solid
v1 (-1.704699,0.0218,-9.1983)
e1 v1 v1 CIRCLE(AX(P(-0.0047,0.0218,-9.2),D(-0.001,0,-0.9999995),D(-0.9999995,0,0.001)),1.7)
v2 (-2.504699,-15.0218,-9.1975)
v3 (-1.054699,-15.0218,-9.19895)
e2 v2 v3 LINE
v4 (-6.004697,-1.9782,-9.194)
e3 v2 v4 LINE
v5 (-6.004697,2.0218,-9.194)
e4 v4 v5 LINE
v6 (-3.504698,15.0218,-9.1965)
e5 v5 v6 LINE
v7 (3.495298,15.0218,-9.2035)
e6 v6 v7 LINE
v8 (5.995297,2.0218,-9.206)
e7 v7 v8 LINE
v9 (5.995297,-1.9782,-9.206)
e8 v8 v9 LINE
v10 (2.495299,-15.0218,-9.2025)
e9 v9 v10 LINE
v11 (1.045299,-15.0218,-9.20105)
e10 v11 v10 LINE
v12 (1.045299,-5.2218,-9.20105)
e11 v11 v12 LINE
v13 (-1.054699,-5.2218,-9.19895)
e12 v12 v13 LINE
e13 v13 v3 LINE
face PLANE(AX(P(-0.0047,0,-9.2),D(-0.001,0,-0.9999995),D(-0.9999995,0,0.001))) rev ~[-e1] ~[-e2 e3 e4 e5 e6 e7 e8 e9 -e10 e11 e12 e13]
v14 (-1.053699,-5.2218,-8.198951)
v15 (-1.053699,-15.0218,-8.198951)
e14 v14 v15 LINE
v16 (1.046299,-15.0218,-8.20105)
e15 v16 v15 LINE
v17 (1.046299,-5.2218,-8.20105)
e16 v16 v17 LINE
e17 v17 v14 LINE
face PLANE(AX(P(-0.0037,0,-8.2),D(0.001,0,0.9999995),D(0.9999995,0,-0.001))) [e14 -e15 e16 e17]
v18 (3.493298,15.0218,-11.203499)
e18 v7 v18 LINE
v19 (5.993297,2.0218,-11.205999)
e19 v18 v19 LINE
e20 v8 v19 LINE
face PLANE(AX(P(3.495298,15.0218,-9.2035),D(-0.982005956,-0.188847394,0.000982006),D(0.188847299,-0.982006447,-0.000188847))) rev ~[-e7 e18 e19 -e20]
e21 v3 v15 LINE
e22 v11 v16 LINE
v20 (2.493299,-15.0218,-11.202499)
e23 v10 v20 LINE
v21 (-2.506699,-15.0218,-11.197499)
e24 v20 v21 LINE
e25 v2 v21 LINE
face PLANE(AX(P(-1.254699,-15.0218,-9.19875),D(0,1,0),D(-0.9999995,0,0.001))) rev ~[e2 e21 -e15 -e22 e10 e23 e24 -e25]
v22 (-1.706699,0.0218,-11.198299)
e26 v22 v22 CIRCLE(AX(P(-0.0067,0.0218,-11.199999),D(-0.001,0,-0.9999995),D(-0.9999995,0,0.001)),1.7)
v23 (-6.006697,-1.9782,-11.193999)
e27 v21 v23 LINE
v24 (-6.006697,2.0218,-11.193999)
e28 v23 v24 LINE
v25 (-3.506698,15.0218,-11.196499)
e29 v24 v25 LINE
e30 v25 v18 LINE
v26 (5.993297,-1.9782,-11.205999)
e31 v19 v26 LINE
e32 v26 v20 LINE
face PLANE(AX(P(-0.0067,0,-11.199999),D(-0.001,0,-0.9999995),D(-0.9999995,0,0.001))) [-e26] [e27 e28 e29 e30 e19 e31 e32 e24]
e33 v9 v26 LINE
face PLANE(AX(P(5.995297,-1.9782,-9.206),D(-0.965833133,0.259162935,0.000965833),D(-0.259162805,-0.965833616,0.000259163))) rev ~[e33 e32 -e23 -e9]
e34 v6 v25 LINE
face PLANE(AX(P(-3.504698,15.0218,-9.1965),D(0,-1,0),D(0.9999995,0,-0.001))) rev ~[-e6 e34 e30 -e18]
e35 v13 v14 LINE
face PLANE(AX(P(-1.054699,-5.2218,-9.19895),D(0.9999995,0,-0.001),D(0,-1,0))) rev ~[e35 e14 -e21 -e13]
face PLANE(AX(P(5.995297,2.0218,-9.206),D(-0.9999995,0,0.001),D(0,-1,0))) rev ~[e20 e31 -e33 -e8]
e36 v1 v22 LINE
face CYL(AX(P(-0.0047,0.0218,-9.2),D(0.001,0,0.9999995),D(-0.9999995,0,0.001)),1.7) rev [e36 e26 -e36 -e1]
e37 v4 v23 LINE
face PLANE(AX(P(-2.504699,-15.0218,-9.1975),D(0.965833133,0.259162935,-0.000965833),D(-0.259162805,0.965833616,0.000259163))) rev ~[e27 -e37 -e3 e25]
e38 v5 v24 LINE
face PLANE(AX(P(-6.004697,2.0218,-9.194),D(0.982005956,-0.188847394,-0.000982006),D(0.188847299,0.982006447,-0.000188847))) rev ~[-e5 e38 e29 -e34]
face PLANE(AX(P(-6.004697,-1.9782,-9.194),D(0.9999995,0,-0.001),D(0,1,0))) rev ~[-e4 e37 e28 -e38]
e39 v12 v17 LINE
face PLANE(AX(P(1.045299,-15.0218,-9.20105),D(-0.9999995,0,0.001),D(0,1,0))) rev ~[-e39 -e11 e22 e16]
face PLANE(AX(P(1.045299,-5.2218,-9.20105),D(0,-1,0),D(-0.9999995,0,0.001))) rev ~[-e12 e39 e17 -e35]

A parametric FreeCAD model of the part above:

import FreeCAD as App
import Part
import Sketcher

V = App.Vector
Q = App.Units.Quantity


def add_polygon(sketch, points):
    """Adds a closed chain of lines whose ends are joined by coincident constraints."""
    first, n = sketch.GeometryCount, len(points)
    for a, b in zip(points, points[1:] + points[:1]):
        sketch.addGeometry(Part.LineSegment(App.Vector(*a, 0), App.Vector(*b, 0)), False)
    for i in range(n):
        sketch.addConstraint(Sketcher.Constraint("Coincident", first + i, 2, first + (i + 1) % n, 1))

doc = App.newDocument("Part")
body = doc.addObject("PartDesign::Body", "Body")

sketch1 = doc.addObject("Sketcher::SketchObject", "Sketch")
body.addObject(sketch1)
sketch1.Placement = App.Placement(V(-0.0047, 0, -9.2), App.Rotation(V(-0.9999995, 0, 0.001), V(0, 1, 0), V(-0.001, 0, -0.9999995), "ZXY"))
add_polygon(sketch1, [(6, -2), (6, 2), (3.5, 15), (-3.5, 15), (-6, 2), (-6, -2), (-2.5, -15), (2.5, -15)])
sketch1.addGeometry(Part.Circle(V(0, 0, 0), V(0, 0, 1), 1.7), False)
sketch1.addConstraint([
    Sketcher.Constraint("Vertical", 0),
    Sketcher.Constraint("Horizontal", 2),
    Sketcher.Constraint("Vertical", 4),
    Sketcher.Constraint("Horizontal", 6),
    Sketcher.Constraint("Symmetric", 0, 2, 3, 2, -2),
    Sketcher.Constraint("PointOnObject", 8, 3, -2),
    Sketcher.Constraint("Horizontal", 4, 2, 7, 2),
    Sketcher.Constraint("Equal", 1, 3),
    Sketcher.Constraint("Equal", 5, 7),
    Sketcher.Constraint("Diameter", 8, Q("3.4 mm")),
    Sketcher.Constraint("DistanceX", 2, 2, 2, 1, Q("7 mm")),
    Sketcher.Constraint("DistanceX", 6, 1, 6, 2, Q("5 mm")),
    Sketcher.Constraint("DistanceY", 0, 1, 0, 2, Q("4 mm")),
    Sketcher.Constraint("DistanceX", -1, 1, 0, 2, Q("6 mm")),
    Sketcher.Constraint("DistanceY", 8, 3, 0, 2, Q("2 mm")),
    Sketcher.Constraint("DistanceY", 0, 2, 1, 2, Q("13 mm")),
    Sketcher.Constraint("Angle", 5, Q("-74.9796 deg")),
    Sketcher.Constraint("DistanceY", -1, 1, 8, 3, Q("0.0218 mm")),
])
pad1 = doc.addObject("PartDesign::Pad", "Pad")
body.addObject(pad1)
pad1.Profile = sketch1
pad1.Length = 2

sketch2 = doc.addObject("Sketcher::SketchObject", "Sketch001")
body.addObject(sketch2)
sketch2.Placement = App.Placement(V(-0.0047, 0, -9.2), App.Rotation(V(0.9999995, 0, -0.001), V(0, 1, 0), V(0.001, 0, 0.9999995), "ZXY"))
add_polygon(sketch2, [(-1.1, -15), (1.1, -15), (1.1, -5.2), (-1.1, -5.2)])
sketch2.addConstraint([
    Sketcher.Constraint("Horizontal", 0),
    Sketcher.Constraint("Vertical", 1),
    Sketcher.Constraint("Horizontal", 2),
    Sketcher.Constraint("Vertical", 3),
    Sketcher.Constraint("DistanceX", 0, 1, 0, 2, Q("2.1 mm")),
    Sketcher.Constraint("DistanceY", 1, 1, 1, 2, Q("9.8 mm")),
    Sketcher.Constraint("DistanceX", -1, 1, 0, 2, Q("1.05 mm")),
    Sketcher.Constraint("DistanceY", 0, 2, -1, 1, Q("15.0218 mm")),
])
pad2 = doc.addObject("PartDesign::Pad", "Pad001")
body.addObject(pad2)
pad2.Profile = sketch2
pad2.Length = 1

doc.recompute()
